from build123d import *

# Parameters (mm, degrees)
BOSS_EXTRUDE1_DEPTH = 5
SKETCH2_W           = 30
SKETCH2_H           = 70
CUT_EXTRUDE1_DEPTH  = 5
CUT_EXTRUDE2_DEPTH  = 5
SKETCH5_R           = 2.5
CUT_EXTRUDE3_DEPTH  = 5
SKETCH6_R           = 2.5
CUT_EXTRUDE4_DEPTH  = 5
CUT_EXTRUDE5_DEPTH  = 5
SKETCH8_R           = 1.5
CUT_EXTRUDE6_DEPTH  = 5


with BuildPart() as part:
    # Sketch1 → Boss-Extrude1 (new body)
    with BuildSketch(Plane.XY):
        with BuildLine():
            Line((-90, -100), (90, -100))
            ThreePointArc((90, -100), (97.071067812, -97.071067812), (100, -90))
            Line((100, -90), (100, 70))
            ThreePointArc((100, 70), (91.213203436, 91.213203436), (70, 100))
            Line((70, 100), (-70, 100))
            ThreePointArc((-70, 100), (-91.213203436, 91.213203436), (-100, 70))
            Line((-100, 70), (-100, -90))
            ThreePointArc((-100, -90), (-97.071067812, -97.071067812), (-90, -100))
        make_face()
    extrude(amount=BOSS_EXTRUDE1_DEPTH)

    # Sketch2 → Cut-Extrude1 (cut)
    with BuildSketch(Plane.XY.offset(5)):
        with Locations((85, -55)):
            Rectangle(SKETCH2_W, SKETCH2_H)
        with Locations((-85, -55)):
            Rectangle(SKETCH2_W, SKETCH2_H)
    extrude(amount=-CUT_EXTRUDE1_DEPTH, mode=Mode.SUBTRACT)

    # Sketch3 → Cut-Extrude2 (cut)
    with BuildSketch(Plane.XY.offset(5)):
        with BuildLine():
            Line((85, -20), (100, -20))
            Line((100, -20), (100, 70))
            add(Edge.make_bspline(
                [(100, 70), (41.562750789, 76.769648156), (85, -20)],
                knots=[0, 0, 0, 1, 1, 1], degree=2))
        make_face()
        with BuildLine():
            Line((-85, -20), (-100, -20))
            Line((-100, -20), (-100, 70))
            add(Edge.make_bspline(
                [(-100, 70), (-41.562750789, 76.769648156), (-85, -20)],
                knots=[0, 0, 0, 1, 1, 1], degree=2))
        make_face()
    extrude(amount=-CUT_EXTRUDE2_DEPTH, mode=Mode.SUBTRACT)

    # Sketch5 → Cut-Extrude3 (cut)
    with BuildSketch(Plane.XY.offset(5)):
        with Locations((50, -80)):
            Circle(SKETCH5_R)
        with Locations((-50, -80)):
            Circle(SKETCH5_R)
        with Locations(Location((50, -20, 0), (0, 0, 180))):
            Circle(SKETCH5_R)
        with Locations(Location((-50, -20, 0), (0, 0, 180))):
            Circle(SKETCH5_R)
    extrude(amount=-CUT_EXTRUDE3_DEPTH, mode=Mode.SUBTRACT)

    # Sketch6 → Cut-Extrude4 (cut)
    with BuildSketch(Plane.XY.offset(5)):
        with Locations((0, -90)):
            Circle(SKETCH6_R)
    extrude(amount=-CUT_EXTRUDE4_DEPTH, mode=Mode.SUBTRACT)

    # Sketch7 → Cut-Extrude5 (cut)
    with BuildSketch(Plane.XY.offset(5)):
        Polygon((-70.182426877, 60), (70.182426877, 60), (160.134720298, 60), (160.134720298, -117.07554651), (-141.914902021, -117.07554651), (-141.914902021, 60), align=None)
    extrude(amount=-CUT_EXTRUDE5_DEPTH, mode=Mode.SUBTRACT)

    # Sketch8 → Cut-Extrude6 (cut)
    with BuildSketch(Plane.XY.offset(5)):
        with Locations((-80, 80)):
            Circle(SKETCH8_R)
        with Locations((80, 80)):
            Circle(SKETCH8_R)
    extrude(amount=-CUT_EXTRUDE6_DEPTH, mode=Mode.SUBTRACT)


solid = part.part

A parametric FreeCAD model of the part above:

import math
import FreeCAD as App
import Part
import Sketcher
from FreeCAD import Vector


def add_polygon(sketch, points):
    """Adds a closed chain of lines whose ends are joined by coincident constraints."""
    first, n = sketch.GeometryCount, len(points)
    for a, b in zip(points, points[1:] + points[:1]):
        sketch.addGeometry(Part.LineSegment(App.Vector(*a, 0), App.Vector(*b, 0)), False)
    for i in range(n):
        sketch.addConstraint(Sketcher.Constraint("Coincident", first + i, 2, first + (i + 1) % n, 1))

doc = App.newDocument("Part")
body = doc.addObject("PartDesign::Body", "Body")

# Sketch on XY plane
sketch1 = body.newObject("Sketcher::SketchObject", "Sketch")
sketch1.AttachmentSupport = (doc.getObject("XY_Plane"), [""])
sketch1.MapMode = "FlatFace"
sketch1.addGeometry([
    Part.LineSegment(Vector(-90, -100, 0), Vector(90, -100, 0)),  # 0
    Part.ArcOfCircle(Part.Circle(Vector(90, -90, 0), Vector(0, 0, 1), 10), math.radians(-90), math.radians(0)),  # 1
    Part.LineSegment(Vector(100, -90, 0), Vector(100, 70, 0)),  # 2
    Part.ArcOfCircle(Part.Circle(Vector(70, 70, 0), Vector(0, 0, 1), 30), math.radians(0), math.radians(90)),  # 3
    Part.LineSegment(Vector(70, 100, 0), Vector(-70, 100, 0)),  # 4
    Part.ArcOfCircle(Part.Circle(Vector(-70, 70, 0), Vector(0, 0, 1), 30), math.radians(90), math.radians(180)),  # 5
    Part.LineSegment(Vector(-100, 70, 0), Vector(-100, -90, 0)),  # 6
    Part.ArcOfCircle(Part.Circle(Vector(-90, -90, 0), Vector(0, 0, 1), 10), math.radians(180), math.radians(270)),  # 7
], False)
sketch1.addConstraint([
    Sketcher.Constraint("Tangent", 0, 2, 1, 1),
    Sketcher.Constraint("Tangent", 1, 2, 2, 1),
    Sketcher.Constraint("Tangent", 2, 2, 3, 1),
    Sketcher.Constraint("Tangent", 3, 2, 4, 1),
    Sketcher.Constraint("Tangent", 4, 2, 5, 1),
    Sketcher.Constraint("Tangent", 5, 2, 6, 1),
    Sketcher.Constraint("Tangent", 6, 2, 7, 1),
    Sketcher.Constraint("Tangent", 7, 2, 0, 1),
    Sketcher.Constraint("Horizontal", 0),
    Sketcher.Constraint("Vertical", 2),
    Sketcher.Constraint("Horizontal", 4),
    Sketcher.Constraint("Vertical", 6),
    Sketcher.Constraint("Equal", 3, 5),
    Sketcher.Constraint("Equal", 1, 7),
    Sketcher.Constraint("Radius", 1, 10.0),
    Sketcher.Constraint("Radius", 3, 30.0),
    Sketcher.Constraint("DistanceX", 0, 1, 0, 2, 180.0),
    Sketcher.Constraint("DistanceY", 2, 1, 2, 2, 160.0),
    Sketcher.Constraint("DistanceX", -1, 1, 1, 3, 90.0),
    Sketcher.Constraint("DistanceY", 1, 3, -1, 1, 90.0),
])
pad1 = body.newObject("PartDesign::Pad", "Pad")
pad1.Profile = sketch1
pad1.Length = 5

# Sketch on XY plane
sketch2 = body.newObject("Sketcher::SketchObject", "Sketch001")
sketch2.AttachmentSupport = (doc.getObject("XY_Plane"), [""])
sketch2.MapMode = "FlatFace"
sketch2.AttachmentOffset = App.Placement(Vector(0, 0, 5), App.Rotation())
add_polygon(sketch2, [(70, -20), (70, -90), (100, -90), (100, -20)])  # lines 0-3
add_polygon(sketch2, [(-100, -20), (-100, -90), (-70, -90), (-70, -20)])  # lines 4-7
sketch2.addConstraint([
    Sketcher.Constraint("Vertical", 0),
    Sketcher.Constraint("Horizontal", 1),
    Sketcher.Constraint("Vertical", 2),
    Sketcher.Constraint("Horizontal", 3),
    Sketcher.Constraint("Vertical", 4),
    Sketcher.Constraint("Horizontal", 5),
    Sketcher.Constraint("Vertical", 6),
    Sketcher.Constraint("Horizontal", 7),
    Sketcher.Constraint("Symmetric", 1, 2, 4, 2, -2),
    Sketcher.Constraint("Symmetric", 3, 2, 6, 2, -2),
    Sketcher.Constraint("DistanceX", 1, 1, 1, 2, 30.0),
    Sketcher.Constraint("DistanceY", 0, 2, 0, 1, 70.0),
    Sketcher.Constraint("DistanceX", -1, 1, 0, 2, 70.0),
    Sketcher.Constraint("DistanceY", 0, 2, -1, 1, 90.0),
])
pocket1 = body.newObject("PartDesign::Pocket", "Pocket")
pocket1.Profile = sketch2
pocket1.Length = 5

# Sketch on XY plane
sketch3 = body.newObject("Sketcher::SketchObject", "Sketch002")
sketch3.AttachmentSupport = (doc.getObject("XY_Plane"), [""])
sketch3.MapMode = "FlatFace"
sketch3.AttachmentOffset = App.Placement(Vector(0, 0, 5), App.Rotation())
sketch3.addGeometry([
    Part.LineSegment(Vector(85, -20, 0), Vector(100, -20, 0)),  # 0
    Part.LineSegment(Vector(100, -20, 0), Vector(100, 70, 0)),  # 1
    Part.BSplineCurve([Vector(100, 70, 0), Vector(41.562751, 76.769648, 0), Vector(85, -20, 0)], [3, 3], [0, 1], False, 2, [1, 1, 1], False),  # 2
    Part.LineSegment(Vector(-100, -20, 0), Vector(-85, -20, 0)),  # 3
    Part.BSplineCurve([Vector(-100, 70, 0), Vector(-41.562751, 76.769648, 0), Vector(-85, -20, 0)], [3, 3], [0, 1], False, 2, [1, 1, 1], False),  # 4
    Part.LineSegment(Vector(-100, 70, 0), Vector(-100, -20, 0)),  # 5
], False)
sketch3.addConstraint([
    Sketcher.Constraint("Block", 2),
    Sketcher.Constraint("Block", 4),
    Sketcher.Constraint("Coincident", 0, 2, 1, 1),
    Sketcher.Constraint("Coincident", 1, 2, 2, 1),
    Sketcher.Constraint("Coincident", 2, 2, 0, 1),
    Sketcher.Constraint("Coincident", 3, 2, 4, 2),
    Sketcher.Constraint("Coincident", 4, 1, 5, 1),
    Sketcher.Constraint("Coincident", 5, 2, 3, 1),
    Sketcher.Constraint("Horizontal", 0),
    Sketcher.Constraint("Vertical", 1),
    Sketcher.Constraint("Horizontal", 3),
    Sketcher.Constraint("Vertical", 5),
])
pocket2 = body.newObject("PartDesign::Pocket", "Pocket001")
pocket2.Profile = sketch3
pocket2.Length = 5

# Sketch on XY plane
sketch4 = body.newObject("Sketcher::SketchObject", "Sketch003")
sketch4.AttachmentSupport = (doc.getObject("XY_Plane"), [""])
sketch4.MapMode = "FlatFace"
sketch4.AttachmentOffset = App.Placement(Vector(0, 0, 5), App.Rotation())
sketch4.addGeometry([
    Part.Circle(Vector(50, -80, 0), Vector(0, 0, 1), 2.5),
    Part.Circle(Vector(-50, -80, 0), Vector(0, 0, 1), 2.5),
    Part.Circle(Vector(50, -20, 0), Vector(0, 0, 1), 2.5),
    Part.Circle(Vector(-50, -20, 0), Vector(0, 0, 1), 2.5),
], False)
sketch4.addConstraint([
    Sketcher.Constraint("Equal", 0, 1),
    Sketcher.Constraint("Equal", 1, 2),
    Sketcher.Constraint("Equal", 2, 3),
    Sketcher.Constraint("Symmetric", 0, 3, 1, 3, -2),
    Sketcher.Constraint("Symmetric", 2, 3, 3, 3, -2),
    Sketcher.Constraint("Vertical", 0, 3, 2, 3),
    Sketcher.Constraint("Diameter", 0, 5.0),
    Sketcher.Constraint("DistanceX", -1, 1, 0, 3, 50.0),
    Sketcher.Constraint("DistanceY", 0, 3, -1, 1, 80.0),
    Sketcher.Constraint("DistanceY", 2, 3, -1, 1, 20.0),
])
pocket3 = body.newObject("PartDesign::Pocket", "Pocket002")
pocket3.Profile = sketch4
pocket3.Length = 5

# Sketch on XY plane
sketch5 = body.newObject("Sketcher::SketchObject", "Sketch004")
sketch5.AttachmentSupport = (doc.getObject("XY_Plane"), [""])
sketch5.MapMode = "FlatFace"
sketch5.AttachmentOffset = App.Placement(Vector(0, 0, 5), App.Rotation())
sketch5.addGeometry(Part.Circle(Vector(0, -90, 0), Vector(0, 0, 1), 2.5), False)
sketch5.addConstraint([
    Sketcher.Constraint("PointOnObject", 0, 3, -2),
    Sketcher.Constraint("Diameter", 0, 5.0),
    Sketcher.Constraint("DistanceY", 0, 3, -1, 1, 90.0),
])
pocket4 = body.newObject("PartDesign::Pocket", "Pocket003")
pocket4.Profile = sketch5
pocket4.Length = 5

# Sketch on XY plane
sketch6 = body.newObject("Sketcher::SketchObject", "Sketch005")
sketch6.AttachmentSupport = (doc.getObject("XY_Plane"), [""])
sketch6.MapMode = "FlatFace"
sketch6.AttachmentOffset = App.Placement(Vector(0, 0, 5), App.Rotation())
add_polygon(sketch6, [(160, 60), (-142, 60), (-142, -117), (160, -117)])  # lines 0-3
sketch6.addConstraint([
    Sketcher.Constraint("Horizontal", 0),
    Sketcher.Constraint("Vertical", 1),
    Sketcher.Constraint("Horizontal", 2),
    Sketcher.Constraint("Vertical", 3),
    Sketcher.Constraint("DistanceY", -1, 1, 0, 2, 60.0),
    Sketcher.Constraint("DistanceX", 0, 2, 0, 1, 302.049622),
    Sketcher.Constraint("DistanceY", 1, 2, 1, 1, 177.075547),
    Sketcher.Constraint("DistanceX", -1, 1, 2, 2, 160.13472),
])
pocket5 = body.newObject("PartDesign::Pocket", "Pocket004")
pocket5.Profile = sketch6
pocket5.Length = 5

# Sketch on XY plane
sketch7 = body.newObject("Sketcher::SketchObject", "Sketch006")
sketch7.AttachmentSupport = (doc.getObject("XY_Plane"), [""])
sketch7.MapMode = "FlatFace"
sketch7.AttachmentOffset = App.Placement(Vector(0, 0, 5), App.Rotation())
sketch7.addGeometry([
    Part.Circle(Vector(-80, 80, 0), Vector(0, 0, 1), 1.5),
    Part.Circle(Vector(80, 80, 0), Vector(0, 0, 1), 1.5),
], False)
sketch7.addConstraint([
    Sketcher.Constraint("Equal", 0, 1),
    Sketcher.Constraint("Symmetric", 0, 3, 1, 3, -2),
    Sketcher.Constraint("Diameter", 0, 3.0),
    Sketcher.Constraint("DistanceX", 0, 3, -1, 1, 80.0),
    Sketcher.Constraint("DistanceY", -1, 1, 0, 3, 80.0),
])
pocket6 = body.newObject("PartDesign::Pocket", "Pocket005")
pocket6.Profile = sketch7
pocket6.Length = 5

doc.recompute()
